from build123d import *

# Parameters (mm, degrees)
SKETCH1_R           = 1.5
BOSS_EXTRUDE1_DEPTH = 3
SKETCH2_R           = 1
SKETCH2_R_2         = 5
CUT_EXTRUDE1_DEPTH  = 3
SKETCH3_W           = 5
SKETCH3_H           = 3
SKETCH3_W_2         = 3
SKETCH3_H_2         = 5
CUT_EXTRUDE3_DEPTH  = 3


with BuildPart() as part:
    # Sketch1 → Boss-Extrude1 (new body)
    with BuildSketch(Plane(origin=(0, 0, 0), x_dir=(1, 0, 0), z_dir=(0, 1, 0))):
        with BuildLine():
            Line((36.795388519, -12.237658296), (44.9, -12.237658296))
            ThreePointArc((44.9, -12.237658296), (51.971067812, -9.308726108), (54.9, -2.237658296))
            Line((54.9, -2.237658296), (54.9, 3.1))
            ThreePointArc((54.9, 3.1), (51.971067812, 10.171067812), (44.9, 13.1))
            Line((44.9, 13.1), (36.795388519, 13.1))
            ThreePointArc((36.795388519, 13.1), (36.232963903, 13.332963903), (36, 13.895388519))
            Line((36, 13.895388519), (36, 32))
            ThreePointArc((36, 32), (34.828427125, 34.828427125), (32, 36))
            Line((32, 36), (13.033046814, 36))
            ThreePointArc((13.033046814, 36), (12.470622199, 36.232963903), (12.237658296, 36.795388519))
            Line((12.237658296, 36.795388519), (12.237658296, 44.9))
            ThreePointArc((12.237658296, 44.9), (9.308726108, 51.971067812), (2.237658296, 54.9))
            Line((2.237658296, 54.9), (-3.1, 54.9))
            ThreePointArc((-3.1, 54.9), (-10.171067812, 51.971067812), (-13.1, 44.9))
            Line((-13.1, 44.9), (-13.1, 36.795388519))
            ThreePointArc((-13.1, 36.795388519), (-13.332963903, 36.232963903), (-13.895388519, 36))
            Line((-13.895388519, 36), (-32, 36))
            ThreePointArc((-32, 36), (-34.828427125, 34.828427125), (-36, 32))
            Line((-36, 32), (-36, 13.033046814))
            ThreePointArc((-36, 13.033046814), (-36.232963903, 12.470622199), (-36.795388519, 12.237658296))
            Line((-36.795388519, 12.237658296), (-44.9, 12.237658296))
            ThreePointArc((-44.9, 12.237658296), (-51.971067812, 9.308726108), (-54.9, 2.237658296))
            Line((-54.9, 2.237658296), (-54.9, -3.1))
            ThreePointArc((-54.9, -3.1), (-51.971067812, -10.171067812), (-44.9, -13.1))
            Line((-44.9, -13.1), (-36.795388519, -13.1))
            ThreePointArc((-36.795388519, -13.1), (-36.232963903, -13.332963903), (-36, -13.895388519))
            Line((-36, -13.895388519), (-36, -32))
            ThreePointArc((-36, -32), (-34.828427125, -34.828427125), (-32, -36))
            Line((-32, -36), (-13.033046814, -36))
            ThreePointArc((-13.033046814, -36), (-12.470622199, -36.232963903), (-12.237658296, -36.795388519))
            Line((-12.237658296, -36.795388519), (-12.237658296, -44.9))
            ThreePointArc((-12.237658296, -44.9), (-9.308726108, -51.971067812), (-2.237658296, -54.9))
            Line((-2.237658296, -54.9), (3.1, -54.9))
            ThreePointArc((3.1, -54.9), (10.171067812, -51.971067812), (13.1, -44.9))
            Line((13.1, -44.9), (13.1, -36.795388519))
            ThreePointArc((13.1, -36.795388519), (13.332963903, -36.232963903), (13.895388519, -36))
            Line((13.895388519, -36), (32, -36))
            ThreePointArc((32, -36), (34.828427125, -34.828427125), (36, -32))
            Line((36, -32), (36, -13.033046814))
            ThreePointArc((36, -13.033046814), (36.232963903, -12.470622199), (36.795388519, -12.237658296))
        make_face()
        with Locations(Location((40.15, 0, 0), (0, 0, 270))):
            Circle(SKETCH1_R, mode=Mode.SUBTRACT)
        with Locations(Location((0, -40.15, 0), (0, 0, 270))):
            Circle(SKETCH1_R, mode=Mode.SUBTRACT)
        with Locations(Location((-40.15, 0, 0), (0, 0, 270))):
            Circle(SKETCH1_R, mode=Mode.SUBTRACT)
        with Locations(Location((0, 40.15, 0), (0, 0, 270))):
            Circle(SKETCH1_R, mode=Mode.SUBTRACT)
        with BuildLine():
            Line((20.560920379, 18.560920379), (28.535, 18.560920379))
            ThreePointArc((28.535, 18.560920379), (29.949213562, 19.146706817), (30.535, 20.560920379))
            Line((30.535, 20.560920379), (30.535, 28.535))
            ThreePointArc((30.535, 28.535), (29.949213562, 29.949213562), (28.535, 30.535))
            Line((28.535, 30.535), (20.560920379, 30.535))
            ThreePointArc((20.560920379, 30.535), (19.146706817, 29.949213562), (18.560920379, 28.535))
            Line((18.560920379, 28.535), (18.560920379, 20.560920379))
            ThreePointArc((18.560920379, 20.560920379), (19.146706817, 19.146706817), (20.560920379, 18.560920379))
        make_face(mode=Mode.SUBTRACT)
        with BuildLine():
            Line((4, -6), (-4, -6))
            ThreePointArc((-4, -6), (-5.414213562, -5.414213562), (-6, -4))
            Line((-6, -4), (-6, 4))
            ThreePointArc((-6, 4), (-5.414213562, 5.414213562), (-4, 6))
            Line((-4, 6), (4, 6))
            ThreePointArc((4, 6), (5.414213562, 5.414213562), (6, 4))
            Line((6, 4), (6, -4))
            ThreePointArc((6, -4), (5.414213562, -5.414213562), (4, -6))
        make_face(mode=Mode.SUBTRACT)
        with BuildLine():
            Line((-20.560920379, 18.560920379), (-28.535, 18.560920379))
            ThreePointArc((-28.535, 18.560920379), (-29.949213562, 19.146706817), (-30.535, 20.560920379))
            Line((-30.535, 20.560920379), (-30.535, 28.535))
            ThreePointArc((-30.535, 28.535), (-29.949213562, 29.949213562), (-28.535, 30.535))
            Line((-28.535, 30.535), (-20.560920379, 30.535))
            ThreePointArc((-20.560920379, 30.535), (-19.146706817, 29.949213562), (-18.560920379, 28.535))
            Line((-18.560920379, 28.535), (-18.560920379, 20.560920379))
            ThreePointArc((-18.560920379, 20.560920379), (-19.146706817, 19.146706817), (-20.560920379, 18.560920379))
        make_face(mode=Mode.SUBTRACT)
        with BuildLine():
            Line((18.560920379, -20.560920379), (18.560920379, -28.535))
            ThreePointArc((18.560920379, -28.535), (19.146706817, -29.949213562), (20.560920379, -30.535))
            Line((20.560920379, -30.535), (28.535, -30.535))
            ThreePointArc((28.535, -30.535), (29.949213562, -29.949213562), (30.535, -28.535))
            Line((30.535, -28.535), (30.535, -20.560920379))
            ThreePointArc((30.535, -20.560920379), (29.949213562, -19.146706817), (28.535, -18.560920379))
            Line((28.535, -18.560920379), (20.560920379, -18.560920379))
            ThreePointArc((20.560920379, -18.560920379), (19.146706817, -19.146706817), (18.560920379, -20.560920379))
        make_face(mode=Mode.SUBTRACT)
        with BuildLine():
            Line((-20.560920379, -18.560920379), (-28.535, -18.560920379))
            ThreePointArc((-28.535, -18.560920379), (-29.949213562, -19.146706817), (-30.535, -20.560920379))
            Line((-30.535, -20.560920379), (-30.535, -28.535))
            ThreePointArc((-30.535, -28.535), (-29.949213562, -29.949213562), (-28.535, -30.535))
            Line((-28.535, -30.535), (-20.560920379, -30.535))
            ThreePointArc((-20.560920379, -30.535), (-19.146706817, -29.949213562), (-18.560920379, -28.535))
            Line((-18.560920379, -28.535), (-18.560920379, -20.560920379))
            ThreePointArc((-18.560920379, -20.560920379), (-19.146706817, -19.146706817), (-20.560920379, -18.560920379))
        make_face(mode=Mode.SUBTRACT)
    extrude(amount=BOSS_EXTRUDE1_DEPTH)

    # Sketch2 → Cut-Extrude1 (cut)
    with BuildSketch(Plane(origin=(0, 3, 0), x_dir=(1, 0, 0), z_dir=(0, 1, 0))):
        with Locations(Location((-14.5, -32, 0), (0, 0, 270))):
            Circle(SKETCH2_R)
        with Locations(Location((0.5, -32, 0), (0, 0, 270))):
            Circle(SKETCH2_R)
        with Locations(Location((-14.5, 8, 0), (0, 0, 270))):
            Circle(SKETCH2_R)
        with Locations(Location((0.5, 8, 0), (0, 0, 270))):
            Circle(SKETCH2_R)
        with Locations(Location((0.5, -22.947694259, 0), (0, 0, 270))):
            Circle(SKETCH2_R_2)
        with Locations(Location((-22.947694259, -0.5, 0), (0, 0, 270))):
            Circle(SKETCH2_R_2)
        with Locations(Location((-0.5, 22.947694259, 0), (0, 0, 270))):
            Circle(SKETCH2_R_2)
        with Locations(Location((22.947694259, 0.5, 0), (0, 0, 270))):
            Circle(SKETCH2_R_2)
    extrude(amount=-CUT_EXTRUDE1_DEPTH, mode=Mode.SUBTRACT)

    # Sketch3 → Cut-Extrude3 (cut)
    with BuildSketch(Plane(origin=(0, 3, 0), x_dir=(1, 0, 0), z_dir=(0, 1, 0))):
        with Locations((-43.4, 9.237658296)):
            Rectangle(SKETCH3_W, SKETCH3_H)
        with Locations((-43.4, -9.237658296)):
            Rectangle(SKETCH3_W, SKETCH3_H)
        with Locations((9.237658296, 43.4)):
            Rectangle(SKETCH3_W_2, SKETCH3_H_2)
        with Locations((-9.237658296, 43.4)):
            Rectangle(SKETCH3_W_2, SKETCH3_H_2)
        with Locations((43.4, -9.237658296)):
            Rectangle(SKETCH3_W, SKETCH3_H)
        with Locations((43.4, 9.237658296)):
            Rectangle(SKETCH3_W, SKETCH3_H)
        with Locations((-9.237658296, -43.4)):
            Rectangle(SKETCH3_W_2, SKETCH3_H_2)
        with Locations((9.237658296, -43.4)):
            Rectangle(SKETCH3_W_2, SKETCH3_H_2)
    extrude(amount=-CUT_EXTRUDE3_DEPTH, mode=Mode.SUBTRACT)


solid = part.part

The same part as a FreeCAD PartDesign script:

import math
import FreeCAD as App
import Part
import Sketcher
from FreeCAD import Vector
Q = App.Units.Quantity

doc = App.newDocument("Part")
body = doc.addObject("PartDesign::Body", "Body")

sketch1 = body.newObject("Sketcher::SketchObject", "Sketch")
sketch1.AttachmentSupport = (doc.getObject("XZ_Plane"), [""])
sketch1.MapMode = "FlatFace"
sketch1.addGeometry([
    Part.LineSegment(Vector(36.8, 12.2, 0), Vector(44.9, 12.2, 0)),
    Part.ArcOfCircle(Part.Circle(Vector(44.9, 2.2, 0), Vector(0, 0, 1), 10), math.radians(0), math.radians(90)),
    Part.LineSegment(Vector(54.9, 2.2, 0), Vector(54.9, -3.1, 0)),
    Part.ArcOfCircle(Part.Circle(Vector(44.9, -3.1, 0), Vector(0, 0, 1), 10), math.radians(-90), math.radians(0)),
    Part.LineSegment(Vector(44.9, -13.1, 0), Vector(36.8, -13.1, 0)),
    Part.ArcOfCircle(Part.Circle(Vector(36.8, -13.9, 0), Vector(0, 0, 1), 0.8), math.radians(90), math.radians(180)),
    Part.LineSegment(Vector(36, -13.9, 0), Vector(36, -32, 0)),
    Part.ArcOfCircle(Part.Circle(Vector(32, -32, 0), Vector(0, 0, 1), 4), math.radians(-90), math.radians(0)),
    Part.LineSegment(Vector(32, -36, 0), Vector(13, -36, 0)),
    Part.ArcOfCircle(Part.Circle(Vector(13, -36.8, 0), Vector(0, 0, 1), 0.8), math.radians(90), math.radians(180)),
    Part.LineSegment(Vector(12.2, -36.8, 0), Vector(12.2, -44.9, 0)),
    Part.ArcOfCircle(Part.Circle(Vector(2.2, -44.9, 0), Vector(0, 0, 1), 10), math.radians(-90), math.radians(0)),
    Part.LineSegment(Vector(2.2, -54.9, 0), Vector(-3.1, -54.9, 0)),
    Part.ArcOfCircle(Part.Circle(Vector(-3.1, -44.9, 0), Vector(0, 0, 1), 10), math.radians(180), math.radians(270)),
    Part.LineSegment(Vector(-13.1, -44.9, 0), Vector(-13.1, -36.8, 0)),
    Part.ArcOfCircle(Part.Circle(Vector(-13.9, -36.8, 0), Vector(0, 0, 1), 0.8), math.radians(0), math.radians(90)),
    Part.LineSegment(Vector(-13.9, -36, 0), Vector(-32, -36, 0)),
    Part.ArcOfCircle(Part.Circle(Vector(-32, -32, 0), Vector(0, 0, 1), 4), math.radians(180), math.radians(270)),
    Part.LineSegment(Vector(-36, -32, 0), Vector(-36, -13, 0)),
    Part.ArcOfCircle(Part.Circle(Vector(-36.8, -13, 0), Vector(0, 0, 1), 0.8), math.radians(0), math.radians(90)),
    Part.LineSegment(Vector(-36.8, -12.2, 0), Vector(-44.9, -12.2, 0)),
    Part.ArcOfCircle(Part.Circle(Vector(-44.9, -2.2, 0), Vector(0, 0, 1), 10), math.radians(180), math.radians(270)),
    Part.LineSegment(Vector(-54.9, -2.2, 0), Vector(-54.9, 3.1, 0)),
    Part.ArcOfCircle(Part.Circle(Vector(-44.9, 3.1, 0), Vector(0, 0, 1), 10), math.radians(90), math.radians(180)),
    Part.LineSegment(Vector(-44.9, 13.1, 0), Vector(-36.8, 13.1, 0)),
    Part.ArcOfCircle(Part.Circle(Vector(-36.8, 13.9, 0), Vector(0, 0, 1), 0.8), math.radians(-90), math.radians(0)),
    Part.LineSegment(Vector(-36, 13.9, 0), Vector(-36, 32, 0)),
    Part.ArcOfCircle(Part.Circle(Vector(-32, 32, 0), Vector(0, 0, 1), 4), math.radians(90), math.radians(180)),
    Part.LineSegment(Vector(-32, 36, 0), Vector(-13, 36, 0)),
    Part.ArcOfCircle(Part.Circle(Vector(-13, 36.8, 0), Vector(0, 0, 1), 0.8), math.radians(-90), math.radians(0)),
    Part.LineSegment(Vector(-12.2, 36.8, 0), Vector(-12.2, 44.9, 0)),
    Part.ArcOfCircle(Part.Circle(Vector(-2.2, 44.9, 0), Vector(0, 0, 1), 10), math.radians(90), math.radians(180)),
    Part.LineSegment(Vector(-2.2, 54.9, 0), Vector(3.1, 54.9, 0)),
    Part.ArcOfCircle(Part.Circle(Vector(3.1, 44.9, 0), Vector(0, 0, 1), 10), math.radians(0), math.radians(90)),
    Part.LineSegment(Vector(13.1, 44.9, 0), Vector(13.1, 36.8, 0)),
    Part.ArcOfCircle(Part.Circle(Vector(13.9, 36.8, 0), Vector(0, 0, 1), 0.8), math.radians(180), math.radians(270)),
    Part.LineSegment(Vector(13.9, 36, 0), Vector(32, 36, 0)),
    Part.ArcOfCircle(Part.Circle(Vector(32, 32, 0), Vector(0, 0, 1), 4), math.radians(0), math.radians(90)),
    Part.LineSegment(Vector(36, 32, 0), Vector(36, 13, 0)),
    Part.ArcOfCircle(Part.Circle(Vector(36.8, 13, 0), Vector(0, 0, 1), 0.8), math.radians(180), math.radians(270)),
    Part.LineSegment(Vector(-28.5, 18.6, 0), Vector(-20.6, 18.6, 0)),
    Part.ArcOfCircle(Part.Circle(Vector(-20.6, 20.6, 0), Vector(0, 0, 1), 2), math.radians(-90), math.radians(0)),
    Part.LineSegment(Vector(-18.6, 20.6, 0), Vector(-18.6, 28.5, 0)),
    Part.ArcOfCircle(Part.Circle(Vector(-20.6, 28.5, 0), Vector(0, 0, 1), 2), math.radians(0), math.radians(90)),
    Part.LineSegment(Vector(-20.6, 30.5, 0), Vector(-28.5, 30.5, 0)),
    Part.ArcOfCircle(Part.Circle(Vector(-28.5, 28.5, 0), Vector(0, 0, 1), 2), math.radians(90), math.radians(180)),
    Part.LineSegment(Vector(-30.5, 28.5, 0), Vector(-30.5, 20.6, 0)),
    Part.ArcOfCircle(Part.Circle(Vector(-28.5, 20.6, 0), Vector(0, 0, 1), 2), math.radians(-180), math.radians(-90)),
    Part.Circle(Vector(0, 40.1, 0), Vector(0, 0, 1), 1.5),
    Part.LineSegment(Vector(18.6, 28.5, 0), Vector(18.6, 20.6, 0)),
    Part.ArcOfCircle(Part.Circle(Vector(20.6, 20.6, 0), Vector(0, 0, 1), 2), math.radians(-180), math.radians(-90)),
    Part.LineSegment(Vector(20.6, 18.6, 0), Vector(28.5, 18.6, 0)),
    Part.ArcOfCircle(Part.Circle(Vector(28.5, 20.6, 0), Vector(0, 0, 1), 2), math.radians(-90), math.radians(0)),
    Part.LineSegment(Vector(30.5, 20.6, 0), Vector(30.5, 28.5, 0)),
    Part.ArcOfCircle(Part.Circle(Vector(28.5, 28.5, 0), Vector(0, 0, 1), 2), math.radians(0), math.radians(90)),
    Part.LineSegment(Vector(28.5, 30.5, 0), Vector(20.6, 30.5, 0)),
    Part.ArcOfCircle(Part.Circle(Vector(20.6, 28.5, 0), Vector(0, 0, 1), 2), math.radians(90), math.radians(180)),
    Part.Circle(Vector(-40.1, 0, 0), Vector(0, 0, 1), 1.5),
    Part.ArcOfCircle(Part.Circle(Vector(-20.6, -20.6, 0), Vector(0, 0, 1), 2), math.radians(0), math.radians(90)),
    Part.LineSegment(Vector(-20.6, -18.6, 0), Vector(-28.5, -18.6, 0)),
    Part.ArcOfCircle(Part.Circle(Vector(-28.5, -20.6, 0), Vector(0, 0, 1), 2), math.radians(90), math.radians(180)),
    Part.LineSegment(Vector(-30.5, -20.6, 0), Vector(-30.5, -28.5, 0)),
    Part.ArcOfCircle(Part.Circle(Vector(-28.5, -28.5, 0), Vector(0, 0, 1), 2), math.radians(-180), math.radians(-90)),
    Part.LineSegment(Vector(-28.5, -30.5, 0), Vector(-20.6, -30.5, 0)),
    Part.ArcOfCircle(Part.Circle(Vector(-20.6, -28.5, 0), Vector(0, 0, 1), 2), math.radians(-90), math.radians(0)),
    Part.LineSegment(Vector(-18.6, -28.5, 0), Vector(-18.6, -20.6, 0)),
    Part.ArcOfCircle(Part.Circle(Vector(4, 4, 0), Vector(0, 0, 1), 2), math.radians(0), math.radians(90)),
    Part.LineSegment(Vector(4, 6, 0), Vector(-4, 6, 0)),
    Part.ArcOfCircle(Part.Circle(Vector(-4, 4, 0), Vector(0, 0, 1), 2), math.radians(90), math.radians(180)),
    Part.LineSegment(Vector(-6, 4, 0), Vector(-6, -4, 0)),
    Part.ArcOfCircle(Part.Circle(Vector(-4, -4, 0), Vector(0, 0, 1), 2), math.radians(-180), math.radians(-90)),
    Part.LineSegment(Vector(-4, -6, 0), Vector(4, -6, 0)),
    Part.ArcOfCircle(Part.Circle(Vector(4, -4, 0), Vector(0, 0, 1), 2), math.radians(-90), math.radians(0)),
    Part.LineSegment(Vector(6, -4, 0), Vector(6, 4, 0)),
    Part.Circle(Vector(40.1, 0, 0), Vector(0, 0, 1), 1.5),
    Part.Circle(Vector(0, -40.1, 0), Vector(0, 0, 1), 1.5),
    Part.LineSegment(Vector(28.5, -18.6, 0), Vector(20.6, -18.6, 0)),
    Part.ArcOfCircle(Part.Circle(Vector(20.6, -20.6, 0), Vector(0, 0, 1), 2), math.radians(90), math.radians(180)),
    Part.LineSegment(Vector(18.6, -20.6, 0), Vector(18.6, -28.5, 0)),
    Part.ArcOfCircle(Part.Circle(Vector(20.6, -28.5, 0), Vector(0, 0, 1), 2), math.radians(-180), math.radians(-90)),
    Part.LineSegment(Vector(20.6, -30.5, 0), Vector(28.5, -30.5, 0)),
    Part.ArcOfCircle(Part.Circle(Vector(28.5, -28.5, 0), Vector(0, 0, 1), 2), math.radians(-90), math.radians(0)),
    Part.LineSegment(Vector(30.5, -28.5, 0), Vector(30.5, -20.6, 0)),
    Part.ArcOfCircle(Part.Circle(Vector(28.5, -20.6, 0), Vector(0, 0, 1), 2), math.radians(0), math.radians(90)),
], False)
sketch1.addConstraint([
    Sketcher.Constraint("Tangent", 0, 2, 1, 2),
    Sketcher.Constraint("Tangent", 1, 1, 2, 1),
    Sketcher.Constraint("Tangent", 2, 2, 3, 2),
    Sketcher.Constraint("Tangent", 3, 1, 4, 1),
    Sketcher.Constraint("Tangent", 4, 2, 5, 1),
    Sketcher.Constraint("Tangent", 5, 2, 6, 1),
    Sketcher.Constraint("Tangent", 6, 2, 7, 2),
    Sketcher.Constraint("Tangent", 7, 1, 8, 1),
    Sketcher.Constraint("Tangent", 8, 2, 9, 1),
    Sketcher.Constraint("Tangent", 9, 2, 10, 1),
    Sketcher.Constraint("Tangent", 10, 2, 11, 2),
    Sketcher.Constraint("Tangent", 11, 1, 12, 1),
    Sketcher.Constraint("Tangent", 12, 2, 13, 2),
    Sketcher.Constraint("Tangent", 13, 1, 14, 1),
    Sketcher.Constraint("Tangent", 14, 2, 15, 1),
    Sketcher.Constraint("Tangent", 15, 2, 16, 1),
    Sketcher.Constraint("Tangent", 16, 2, 17, 2),
    Sketcher.Constraint("Tangent", 17, 1, 18, 1),
    Sketcher.Constraint("Tangent", 18, 2, 19, 1),
    Sketcher.Constraint("Tangent", 19, 2, 20, 1),
    Sketcher.Constraint("Tangent", 20, 2, 21, 2),
    Sketcher.Constraint("Tangent", 21, 1, 22, 1),
    Sketcher.Constraint("Tangent", 22, 2, 23, 2),
    Sketcher.Constraint("Tangent", 23, 1, 24, 1),
    Sketcher.Constraint("Tangent", 24, 2, 25, 1),
    Sketcher.Constraint("Tangent", 25, 2, 26, 1),
    Sketcher.Constraint("Tangent", 26, 2, 27, 2),
    Sketcher.Constraint("Tangent", 27, 1, 28, 1),
    Sketcher.Constraint("Tangent", 28, 2, 29, 1),
    Sketcher.Constraint("Tangent", 29, 2, 30, 1),
    Sketcher.Constraint("Tangent", 30, 2, 31, 2),
    Sketcher.Constraint("Tangent", 31, 1, 32, 1),
    Sketcher.Constraint("Tangent", 32, 2, 33, 2),
    Sketcher.Constraint("Tangent", 33, 1, 34, 1),
    Sketcher.Constraint("Tangent", 34, 2, 35, 1),
    Sketcher.Constraint("Tangent", 35, 2, 36, 1),
    Sketcher.Constraint("Tangent", 36, 2, 37, 2),
    Sketcher.Constraint("Tangent", 37, 1, 38, 1),
    Sketcher.Constraint("Tangent", 38, 2, 39, 1),
    Sketcher.Constraint("Tangent", 39, 2, 0, 1),
    Sketcher.Constraint("Tangent", 40, 2, 41, 1),
    Sketcher.Constraint("Tangent", 41, 2, 42, 1),
    Sketcher.Constraint("Tangent", 42, 2, 43, 1),
    Sketcher.Constraint("Tangent", 43, 2, 44, 1),
    Sketcher.Constraint("Tangent", 44, 2, 45, 1),
    Sketcher.Constraint("Tangent", 45, 2, 46, 1),
    Sketcher.Constraint("Tangent", 46, 2, 47, 1),
    Sketcher.Constraint("Tangent", 47, 2, 40, 1),
    Sketcher.Constraint("Tangent", 49, 2, 50, 1),
    Sketcher.Constraint("Tangent", 50, 2, 51, 1),
    Sketcher.Constraint("Tangent", 51, 2, 52, 1),
    Sketcher.Constraint("Tangent", 52, 2, 53, 1),
    Sketcher.Constraint("Tangent", 53, 2, 54, 1),
    Sketcher.Constraint("Tangent", 54, 2, 55, 1),
    Sketcher.Constraint("Tangent", 55, 2, 56, 1),
    Sketcher.Constraint("Tangent", 56, 2, 49, 1),
    Sketcher.Constraint("Tangent", 58, 2, 59, 1),
    Sketcher.Constraint("Tangent", 59, 2, 60, 1),
    Sketcher.Constraint("Tangent", 60, 2, 61, 1),
    Sketcher.Constraint("Tangent", 61, 2, 62, 1),
    Sketcher.Constraint("Tangent", 62, 2, 63, 1),
    Sketcher.Constraint("Tangent", 63, 2, 64, 1),
    Sketcher.Constraint("Tangent", 64, 2, 65, 1),
    Sketcher.Constraint("Tangent", 65, 2, 58, 1),
    Sketcher.Constraint("Tangent", 66, 2, 67, 1),
    Sketcher.Constraint("Tangent", 67, 2, 68, 1),
    Sketcher.Constraint("Tangent", 68, 2, 69, 1),
    Sketcher.Constraint("Tangent", 69, 2, 70, 1),
    Sketcher.Constraint("Tangent", 70, 2, 71, 1),
    Sketcher.Constraint("Tangent", 71, 2, 72, 1),
    Sketcher.Constraint("Tangent", 72, 2, 73, 1),
    Sketcher.Constraint("Tangent", 73, 2, 66, 1),
    Sketcher.Constraint("Tangent", 76, 2, 77, 1),
    Sketcher.Constraint("Tangent", 77, 2, 78, 1),
    Sketcher.Constraint("Tangent", 78, 2, 79, 1),
    Sketcher.Constraint("Tangent", 79, 2, 80, 1),
    Sketcher.Constraint("Tangent", 80, 2, 81, 1),
    Sketcher.Constraint("Tangent", 81, 2, 82, 1),
    Sketcher.Constraint("Tangent", 82, 2, 83, 1),
    Sketcher.Constraint("Tangent", 83, 2, 76, 1),
    Sketcher.Constraint("Horizontal", 0),
    Sketcher.Constraint("Vertical", 2),
    Sketcher.Constraint("Horizontal", 4),
    Sketcher.Constraint("Vertical", 6),
    Sketcher.Constraint("Horizontal", 8),
    Sketcher.Constraint("Vertical", 10),
    Sketcher.Constraint("Horizontal", 12),
    Sketcher.Constraint("Vertical", 14),
    Sketcher.Constraint("Horizontal", 16),
    Sketcher.Constraint("Vertical", 18),
    Sketcher.Constraint("Horizontal", 20),
    Sketcher.Constraint("Vertical", 22),
    Sketcher.Constraint("Horizontal", 24),
    Sketcher.Constraint("Vertical", 26),
    Sketcher.Constraint("Horizontal", 28),
    Sketcher.Constraint("Vertical", 30),
    Sketcher.Constraint("Horizontal", 32),
    Sketcher.Constraint("Vertical", 34),
    Sketcher.Constraint("Horizontal", 36),
    Sketcher.Constraint("Vertical", 38),
    Sketcher.Constraint("Horizontal", 40),
    Sketcher.Constraint("Vertical", 42),
    Sketcher.Constraint("Horizontal", 44),
    Sketcher.Constraint("Vertical", 46),
    Sketcher.Constraint("Vertical", 49),
    Sketcher.Constraint("Horizontal", 51),
    Sketcher.Constraint("Vertical", 53),
    Sketcher.Constraint("Horizontal", 55),
    Sketcher.Constraint("Horizontal", 59),
    Sketcher.Constraint("Vertical", 61),
    Sketcher.Constraint("Horizontal", 63),
    Sketcher.Constraint("Vertical", 65),
    Sketcher.Constraint("Horizontal", 67),
    Sketcher.Constraint("Vertical", 69),
    Sketcher.Constraint("Horizontal", 71),
    Sketcher.Constraint("Vertical", 73),
    Sketcher.Constraint("Horizontal", 76),
    Sketcher.Constraint("Vertical", 78),
    Sketcher.Constraint("Horizontal", 80),
    Sketcher.Constraint("Vertical", 82),
    Sketcher.Constraint("Equal", 1, 3),
    Sketcher.Constraint("Equal", 5, 9),
    Sketcher.Constraint("Equal", 3, 11),
    Sketcher.Constraint("Equal", 11, 13),
    Sketcher.Constraint("Equal", 9, 15),
    Sketcher.Constraint("Equal", 7, 17),
    Sketcher.Constraint("Equal", 15, 19),
    Sketcher.Constraint("Equal", 13, 21),
    Sketcher.Constraint("Equal", 21, 23),
    Sketcher.Constraint("Equal", 19, 25),
    Sketcher.Constraint("Equal", 17, 27),
    Sketcher.Constraint("Equal", 25, 29),
    Sketcher.Constraint("Equal", 23, 31),
    Sketcher.Constraint("Equal", 31, 33),
    Sketcher.Constraint("Equal", 29, 35),
    Sketcher.Constraint("Equal", 27, 37),
    Sketcher.Constraint("Equal", 35, 39),
    Sketcher.Constraint("Equal", 41, 43),
    Sketcher.Constraint("Equal", 43, 45),
    Sketcher.Constraint("Equal", 45, 47),
    Sketcher.Constraint("Equal", 47, 50),
    Sketcher.Constraint("Equal", 50, 52),
    Sketcher.Constraint("Equal", 52, 54),
    Sketcher.Constraint("Equal", 54, 56),
    Sketcher.Constraint("Equal", 48, 57),
    Sketcher.Constraint("Equal", 56, 58),
    Sketcher.Constraint("Equal", 58, 60),
    Sketcher.Constraint("Equal", 60, 62),
    Sketcher.Constraint("Equal", 62, 64),
    Sketcher.Constraint("Equal", 64, 66),
    Sketcher.Constraint("Equal", 66, 68),
    Sketcher.Constraint("Equal", 68, 70),
    Sketcher.Constraint("Equal", 70, 72),
    Sketcher.Constraint("Equal", 57, 74),
    Sketcher.Constraint("Equal", 74, 75),
    Sketcher.Constraint("Equal", 72, 77),
    Sketcher.Constraint("Equal", 77, 79),
    Sketcher.Constraint("Equal", 79, 81),
    Sketcher.Constraint("Equal", 81, 83),
    Sketcher.Constraint("Symmetric", 1, 3, 21, 3, -1, 1),
    Sketcher.Constraint("Symmetric", 5, 3, 25, 3, -1, 1),
    Sketcher.Constraint("Symmetric", 9, 3, 29, 3, -1, 1),
    Sketcher.Constraint("Symmetric", 13, 3, 33, 3, -1, 1),
    Sketcher.Constraint("Symmetric", 17, 3, 37, 3, -1, 1),
    Sketcher.Constraint("Symmetric", 50, 3, 58, 3, -1, 1),
    Sketcher.Constraint("Symmetric", 54, 3, 62, 3, -1, 1),
    Sketcher.Constraint("Symmetric", 66, 3, 70, 3, -1, 1),
    Sketcher.Constraint("Symmetric", 57, 3, 74, 3, -1, 1),
    Sketcher.Constraint("Symmetric", 48, 3, 75, 3, -1, 1),
    Sketcher.Constraint("Symmetric", 41, 3, 77, 3, -1, 1),
    Sketcher.Constraint("Symmetric", 45, 3, 81, 3, -1, 1),
    Sketcher.Constraint("Symmetric", 7, 3, 17, 3, -2),
    Sketcher.Constraint("Symmetric", 41, 3, 50, 3, -2),
    Sketcher.Constraint("Symmetric", 45, 3, 54, 3, -2),
    Sketcher.Constraint("PointOnObject", 48, 3, -2),
    Sketcher.Constraint("PointOnObject", 57, 3, -1),
    Sketcher.Constraint("Equal", 32, 2),
    Sketcher.Constraint("Equal", 36, 6),
    Sketcher.Constraint("Equal", 24, 10),
    Sketcher.Constraint("Equal", 28, 18),
    Sketcher.Constraint("Equal", 80, 42),
    Sketcher.Constraint("Equal", 71, 69),
    Sketcher.Constraint("Diameter", 48, Q("3 mm")),
    Sketcher.Constraint("Radius", 1, Q("10 mm")),
    Sketcher.Constraint("Radius", 7, Q("4 mm")),
    Sketcher.Constraint("Radius", 41, Q("2 mm")),
    Sketcher.Constraint("DistanceX", 67, 2, 67, 1, Q("8 mm")),
    Sketcher.Constraint("DistanceX", -1, 1, 7, 3, Q("32 mm")),
    Sketcher.Constraint("DistanceX", -1, 1, 1, 3, Q("44.9 mm")),
    Sketcher.Constraint("DistanceY", 3, 3, -1, 1, Q("3.1 mm")),
    Sketcher.Constraint("DistanceY", -1, 1, 48, 3, Q("40.15 mm")),
    Sketcher.Constraint("DistanceX", 57, 3, -1, 1, Q("40.15 mm")),
    Sketcher.Constraint("Radius", 5, Q("0.795389 mm")),
    Sketcher.Constraint("DistanceY", -1, 1, 43, 3, Q("28.535 mm")),
    Sketcher.Constraint("DistanceX", 45, 3, -1, 1, Q("28.535 mm")),
    Sketcher.Constraint("DistanceX", 12, 2, 12, 1, Q("5.337658 mm")),
    Sketcher.Constraint("DistanceX", 40, 1, 40, 2, Q("7.97408 mm")),
])
pad1 = body.newObject("PartDesign::Pad", "Pad")
pad1.Profile = sketch1
pad1.Length = 3
pad1.Reversed = True

sketch2 = body.newObject("Sketcher::SketchObject", "Sketch001")
sketch2.AttachmentSupport = (doc.getObject("XZ_Plane"), [""])
sketch2.MapMode = "FlatFace"
sketch2.AttachmentOffset = App.Placement(Vector(0, 0, -3), App.Rotation())
sketch2.addGeometry([
    Part.Circle(Vector(-14.5, 32, 0), Vector(0, 0, 1), 1),
    Part.Circle(Vector(0.5, 32, 0), Vector(0, 0, 1), 1),
    Part.Circle(Vector(-14.5, -8, 0), Vector(0, 0, 1), 1),
    Part.Circle(Vector(0.5, -8, 0), Vector(0, 0, 1), 1),
    Part.Circle(Vector(0.5, 22.9, 0), Vector(0, 0, 1), 5),
    Part.Circle(Vector(-22.9, 0.5, 0), Vector(0, 0, 1), 5),
    Part.Circle(Vector(-0.5, -22.9, 0), Vector(0, 0, 1), 5),
    Part.Circle(Vector(22.9, -0.5, 0), Vector(0, 0, 1), 5),
], False)
sketch2.addConstraint([
    Sketcher.Constraint("Equal", 0, 1),
    Sketcher.Constraint("Equal", 1, 2),
    Sketcher.Constraint("Equal", 2, 3),
    Sketcher.Constraint("Equal", 4, 5),
    Sketcher.Constraint("Equal", 5, 6),
    Sketcher.Constraint("Equal", 6, 7),
    Sketcher.Constraint("Symmetric", 4, 3, 6, 3, -1, 1),
    Sketcher.Constraint("Symmetric", 5, 3, 7, 3, -1, 1),
    Sketcher.Constraint("Horizontal", 0, 3, 1, 3),
    Sketcher.Constraint("Horizontal", 2, 3, 3, 3),
    Sketcher.Constraint("Vertical", 0, 3, 2, 3),
    Sketcher.Constraint("Vertical", 1, 3, 3, 3),
    Sketcher.Constraint("Vertical", 3, 3, 4, 3),
    Sketcher.Constraint("Diameter", 0, Q("2 mm")),
    Sketcher.Constraint("Diameter", 4, Q("10 mm")),
    Sketcher.Constraint("DistanceY", -1, 1, 0, 3, Q("32 mm")),
    Sketcher.Constraint("DistanceY", 2, 3, -1, 1, Q("8 mm")),
    Sketcher.Constraint("DistanceX", 0, 3, 1, 3, Q("15 mm")),
    Sketcher.Constraint("DistanceX", 6, 3, 3, 3, Q("1 mm")),
    Sketcher.Constraint("DistanceY", -1, 1, 5, 3, Q("0.5 mm")),
    Sketcher.Constraint("DistanceY", 6, 3, 4, 3, Q("45.895389 mm")),
    Sketcher.Constraint("DistanceX", 5, 3, -1, 1, Q("22.947694 mm")),
])
pocket1 = body.newObject("PartDesign::Pocket", "Pocket")
pocket1.Profile = sketch2
pocket1.Length = 3
pocket1.Reversed = True

sketch3 = body.newObject("Sketcher::SketchObject", "Sketch002")
sketch3.AttachmentSupport = (doc.getObject("XZ_Plane"), [""])
sketch3.MapMode = "FlatFace"
sketch3.AttachmentOffset = App.Placement(Vector(0, 0, -3), App.Rotation())
sketch3.addGeometry([
    Part.LineSegment(Vector(-45.9, -10.7, 0), Vector(-45.9, -7.7, 0)),
    Part.LineSegment(Vector(-45.9, -7.7, 0), Vector(-40.9, -7.7, 0)),
    Part.LineSegment(Vector(-40.9, -7.7, 0), Vector(-40.9, -10.7, 0)),
    Part.LineSegment(Vector(-40.9, -10.7, 0), Vector(-45.9, -10.7, 0)),
    Part.LineSegment(Vector(-45.9, 7.7, 0), Vector(-45.9, 10.7, 0)),
    Part.LineSegment(Vector(-45.9, 10.7, 0), Vector(-40.9, 10.7, 0)),
    Part.LineSegment(Vector(-40.9, 10.7, 0), Vector(-40.9, 7.7, 0)),
    Part.LineSegment(Vector(-40.9, 7.7, 0), Vector(-45.9, 7.7, 0)),
    Part.LineSegment(Vector(7.7, -45.9, 0), Vector(7.7, -40.9, 0)),
    Part.LineSegment(Vector(7.7, -40.9, 0), Vector(10.7, -40.9, 0)),
    Part.LineSegment(Vector(10.7, -40.9, 0), Vector(10.7, -45.9, 0)),
    Part.LineSegment(Vector(10.7, -45.9, 0), Vector(7.7, -45.9, 0)),
    Part.LineSegment(Vector(-10.7, -45.9, 0), Vector(-10.7, -40.9, 0)),
    Part.LineSegment(Vector(-10.7, -40.9, 0), Vector(-7.7, -40.9, 0)),
    Part.LineSegment(Vector(-7.7, -40.9, 0), Vector(-7.7, -45.9, 0)),
    Part.LineSegment(Vector(-7.7, -45.9, 0), Vector(-10.7, -45.9, 0)),
    Part.LineSegment(Vector(40.9, 7.7, 0), Vector(40.9, 10.7, 0)),
    Part.LineSegment(Vector(40.9, 10.7, 0), Vector(45.9, 10.7, 0)),
    Part.LineSegment(Vector(45.9, 10.7, 0), Vector(45.9, 7.7, 0)),
    Part.LineSegment(Vector(45.9, 7.7, 0), Vector(40.9, 7.7, 0)),
    Part.LineSegment(Vector(40.9, -10.7, 0), Vector(40.9, -7.7, 0)),
    Part.LineSegment(Vector(40.9, -7.7, 0), Vector(45.9, -7.7, 0)),
    Part.LineSegment(Vector(45.9, -7.7, 0), Vector(45.9, -10.7, 0)),
    Part.LineSegment(Vector(45.9, -10.7, 0), Vector(40.9, -10.7, 0)),
    Part.LineSegment(Vector(-10.7, 40.9, 0), Vector(-10.7, 45.9, 0)),
    Part.LineSegment(Vector(-10.7, 45.9, 0), Vector(-7.7, 45.9, 0)),
    Part.LineSegment(Vector(-7.7, 45.9, 0), Vector(-7.7, 40.9, 0)),
    Part.LineSegment(Vector(-7.7, 40.9, 0), Vector(-10.7, 40.9, 0)),
    Part.LineSegment(Vector(7.7, 40.9, 0), Vector(7.7, 45.9, 0)),
    Part.LineSegment(Vector(7.7, 45.9, 0), Vector(10.7, 45.9, 0)),
    Part.LineSegment(Vector(10.7, 45.9, 0), Vector(10.7, 40.9, 0)),
    Part.LineSegment(Vector(10.7, 40.9, 0), Vector(7.7, 40.9, 0)),
], False)
sketch3.addConstraint([
    Sketcher.Constraint("Coincident", 0, 2, 1, 1),
    Sketcher.Constraint("Coincident", 1, 2, 2, 1),
    Sketcher.Constraint("Coincident", 2, 2, 3, 1),
    Sketcher.Constraint("Coincident", 3, 2, 0, 1),
    Sketcher.Constraint("Coincident", 4, 2, 5, 1),
    Sketcher.Constraint("Coincident", 5, 2, 6, 1),
    Sketcher.Constraint("Coincident", 6, 2, 7, 1),
    Sketcher.Constraint("Coincident", 7, 2, 4, 1),
    Sketcher.Constraint("Coincident", 8, 2, 9, 1),
    Sketcher.Constraint("Coincident", 9, 2, 10, 1),
    Sketcher.Constraint("Coincident", 10, 2, 11, 1),
    Sketcher.Constraint("Coincident", 11, 2, 8, 1),
    Sketcher.Constraint("Coincident", 12, 2, 13, 1),
    Sketcher.Constraint("Coincident", 13, 2, 14, 1),
    Sketcher.Constraint("Coincident", 14, 2, 15, 1),
    Sketcher.Constraint("Coincident", 15, 2, 12, 1),
    Sketcher.Constraint("Coincident", 16, 2, 17, 1),
    Sketcher.Constraint("Coincident", 17, 2, 18, 1),
    Sketcher.Constraint("Coincident", 18, 2, 19, 1),
    Sketcher.Constraint("Coincident", 19, 2, 16, 1),
    Sketcher.Constraint("Coincident", 20, 2, 21, 1),
    Sketcher.Constraint("Coincident", 21, 2, 22, 1),
    Sketcher.Constraint("Coincident", 22, 2, 23, 1),
    Sketcher.Constraint("Coincident", 23, 2, 20, 1),
    Sketcher.Constraint("Coincident", 24, 2, 25, 1),
    Sketcher.Constraint("Coincident", 25, 2, 26, 1),
    Sketcher.Constraint("Coincident", 26, 2, 27, 1),
    Sketcher.Constraint("Coincident", 27, 2, 24, 1),
    Sketcher.Constraint("Coincident", 28, 2, 29, 1),
    Sketcher.Constraint("Coincident", 29, 2, 30, 1),
    Sketcher.Constraint("Coincident", 30, 2, 31, 1),
    Sketcher.Constraint("Coincident", 31, 2, 28, 1),
    Sketcher.Constraint("Vertical", 0),
    Sketcher.Constraint("Horizontal", 1),
    Sketcher.Constraint("Vertical", 2),
    Sketcher.Constraint("Horizontal", 3),
    Sketcher.Constraint("Vertical", 4),
    Sketcher.Constraint("Horizontal", 5),
    Sketcher.Constraint("Vertical", 6),
    Sketcher.Constraint("Horizontal", 7),
    Sketcher.Constraint("Vertical", 8),
    Sketcher.Constraint("Horizontal", 9),
    Sketcher.Constraint("Vertical", 10),
    Sketcher.Constraint("Horizontal", 11),
    Sketcher.Constraint("Vertical", 12),
    Sketcher.Constraint("Horizontal", 13),
    Sketcher.Constraint("Vertical", 14),
    Sketcher.Constraint("Horizontal", 15),
    Sketcher.Constraint("Vertical", 16),
    Sketcher.Constraint("Horizontal", 17),
    Sketcher.Constraint("Vertical", 18),
    Sketcher.Constraint("Horizontal", 19),
    Sketcher.Constraint("Vertical", 20),
    Sketcher.Constraint("Horizontal", 21),
    Sketcher.Constraint("Vertical", 22),
    Sketcher.Constraint("Horizontal", 23),
    Sketcher.Constraint("Vertical", 24),
    Sketcher.Constraint("Horizontal", 25),
    Sketcher.Constraint("Vertical", 26),
    Sketcher.Constraint("Horizontal", 27),
    Sketcher.Constraint("Vertical", 28),
    Sketcher.Constraint("Horizontal", 29),
    Sketcher.Constraint("Vertical", 30),
    Sketcher.Constraint("Horizontal", 31),
    Sketcher.Constraint("Symmetric", 2, 2, 16, 2, -1, 1),
    Sketcher.Constraint("Symmetric", 0, 2, 18, 2, -1, 1),
    Sketcher.Constraint("Symmetric", 6, 2, 20, 2, -1, 1),
    Sketcher.Constraint("Symmetric", 4, 2, 22, 2, -1, 1),
    Sketcher.Constraint("Symmetric", 10, 2, 24, 2, -1, 1),
    Sketcher.Constraint("Symmetric", 8, 2, 26, 2, -1, 1),
    Sketcher.Constraint("Symmetric", 14, 2, 28, 2, -1, 1),
    Sketcher.Constraint("Symmetric", 12, 2, 30, 2, -1, 1),
    Sketcher.Constraint("Symmetric", 9, 2, 12, 2, -2),
    Sketcher.Constraint("Symmetric", 11, 2, 14, 2, -2),
    Sketcher.Constraint("Symmetric", 5, 2, 16, 2, -2),
    Sketcher.Constraint("Symmetric", 7, 2, 18, 2, -2),
    Sketcher.Constraint("Equal", 31, 0),
    Sketcher.Constraint("Equal", 23, 8),
    Sketcher.Constraint("DistanceX", 1, 1, 1, 2, Q("5 mm")),
    Sketcher.Constraint("DistanceX", 9, 1, 9, 2, Q("3 mm")),
    Sketcher.Constraint("DistanceX", 0, 2, -1, 1, Q("45.9 mm")),
    Sketcher.Constraint("DistanceY", 8, 2, -1, 1, Q("40.9 mm")),
    Sketcher.Constraint("DistanceY", 0, 2, -1, 1, Q("7.737658 mm")),
    Sketcher.Constraint("DistanceX", -1, 1, 8, 2, Q("7.737658 mm")),
])
pocket2 = body.newObject("PartDesign::Pocket", "Pocket001")
pocket2.Profile = sketch3
pocket2.Length = 3
pocket2.Reversed = True

doc.recompute()
